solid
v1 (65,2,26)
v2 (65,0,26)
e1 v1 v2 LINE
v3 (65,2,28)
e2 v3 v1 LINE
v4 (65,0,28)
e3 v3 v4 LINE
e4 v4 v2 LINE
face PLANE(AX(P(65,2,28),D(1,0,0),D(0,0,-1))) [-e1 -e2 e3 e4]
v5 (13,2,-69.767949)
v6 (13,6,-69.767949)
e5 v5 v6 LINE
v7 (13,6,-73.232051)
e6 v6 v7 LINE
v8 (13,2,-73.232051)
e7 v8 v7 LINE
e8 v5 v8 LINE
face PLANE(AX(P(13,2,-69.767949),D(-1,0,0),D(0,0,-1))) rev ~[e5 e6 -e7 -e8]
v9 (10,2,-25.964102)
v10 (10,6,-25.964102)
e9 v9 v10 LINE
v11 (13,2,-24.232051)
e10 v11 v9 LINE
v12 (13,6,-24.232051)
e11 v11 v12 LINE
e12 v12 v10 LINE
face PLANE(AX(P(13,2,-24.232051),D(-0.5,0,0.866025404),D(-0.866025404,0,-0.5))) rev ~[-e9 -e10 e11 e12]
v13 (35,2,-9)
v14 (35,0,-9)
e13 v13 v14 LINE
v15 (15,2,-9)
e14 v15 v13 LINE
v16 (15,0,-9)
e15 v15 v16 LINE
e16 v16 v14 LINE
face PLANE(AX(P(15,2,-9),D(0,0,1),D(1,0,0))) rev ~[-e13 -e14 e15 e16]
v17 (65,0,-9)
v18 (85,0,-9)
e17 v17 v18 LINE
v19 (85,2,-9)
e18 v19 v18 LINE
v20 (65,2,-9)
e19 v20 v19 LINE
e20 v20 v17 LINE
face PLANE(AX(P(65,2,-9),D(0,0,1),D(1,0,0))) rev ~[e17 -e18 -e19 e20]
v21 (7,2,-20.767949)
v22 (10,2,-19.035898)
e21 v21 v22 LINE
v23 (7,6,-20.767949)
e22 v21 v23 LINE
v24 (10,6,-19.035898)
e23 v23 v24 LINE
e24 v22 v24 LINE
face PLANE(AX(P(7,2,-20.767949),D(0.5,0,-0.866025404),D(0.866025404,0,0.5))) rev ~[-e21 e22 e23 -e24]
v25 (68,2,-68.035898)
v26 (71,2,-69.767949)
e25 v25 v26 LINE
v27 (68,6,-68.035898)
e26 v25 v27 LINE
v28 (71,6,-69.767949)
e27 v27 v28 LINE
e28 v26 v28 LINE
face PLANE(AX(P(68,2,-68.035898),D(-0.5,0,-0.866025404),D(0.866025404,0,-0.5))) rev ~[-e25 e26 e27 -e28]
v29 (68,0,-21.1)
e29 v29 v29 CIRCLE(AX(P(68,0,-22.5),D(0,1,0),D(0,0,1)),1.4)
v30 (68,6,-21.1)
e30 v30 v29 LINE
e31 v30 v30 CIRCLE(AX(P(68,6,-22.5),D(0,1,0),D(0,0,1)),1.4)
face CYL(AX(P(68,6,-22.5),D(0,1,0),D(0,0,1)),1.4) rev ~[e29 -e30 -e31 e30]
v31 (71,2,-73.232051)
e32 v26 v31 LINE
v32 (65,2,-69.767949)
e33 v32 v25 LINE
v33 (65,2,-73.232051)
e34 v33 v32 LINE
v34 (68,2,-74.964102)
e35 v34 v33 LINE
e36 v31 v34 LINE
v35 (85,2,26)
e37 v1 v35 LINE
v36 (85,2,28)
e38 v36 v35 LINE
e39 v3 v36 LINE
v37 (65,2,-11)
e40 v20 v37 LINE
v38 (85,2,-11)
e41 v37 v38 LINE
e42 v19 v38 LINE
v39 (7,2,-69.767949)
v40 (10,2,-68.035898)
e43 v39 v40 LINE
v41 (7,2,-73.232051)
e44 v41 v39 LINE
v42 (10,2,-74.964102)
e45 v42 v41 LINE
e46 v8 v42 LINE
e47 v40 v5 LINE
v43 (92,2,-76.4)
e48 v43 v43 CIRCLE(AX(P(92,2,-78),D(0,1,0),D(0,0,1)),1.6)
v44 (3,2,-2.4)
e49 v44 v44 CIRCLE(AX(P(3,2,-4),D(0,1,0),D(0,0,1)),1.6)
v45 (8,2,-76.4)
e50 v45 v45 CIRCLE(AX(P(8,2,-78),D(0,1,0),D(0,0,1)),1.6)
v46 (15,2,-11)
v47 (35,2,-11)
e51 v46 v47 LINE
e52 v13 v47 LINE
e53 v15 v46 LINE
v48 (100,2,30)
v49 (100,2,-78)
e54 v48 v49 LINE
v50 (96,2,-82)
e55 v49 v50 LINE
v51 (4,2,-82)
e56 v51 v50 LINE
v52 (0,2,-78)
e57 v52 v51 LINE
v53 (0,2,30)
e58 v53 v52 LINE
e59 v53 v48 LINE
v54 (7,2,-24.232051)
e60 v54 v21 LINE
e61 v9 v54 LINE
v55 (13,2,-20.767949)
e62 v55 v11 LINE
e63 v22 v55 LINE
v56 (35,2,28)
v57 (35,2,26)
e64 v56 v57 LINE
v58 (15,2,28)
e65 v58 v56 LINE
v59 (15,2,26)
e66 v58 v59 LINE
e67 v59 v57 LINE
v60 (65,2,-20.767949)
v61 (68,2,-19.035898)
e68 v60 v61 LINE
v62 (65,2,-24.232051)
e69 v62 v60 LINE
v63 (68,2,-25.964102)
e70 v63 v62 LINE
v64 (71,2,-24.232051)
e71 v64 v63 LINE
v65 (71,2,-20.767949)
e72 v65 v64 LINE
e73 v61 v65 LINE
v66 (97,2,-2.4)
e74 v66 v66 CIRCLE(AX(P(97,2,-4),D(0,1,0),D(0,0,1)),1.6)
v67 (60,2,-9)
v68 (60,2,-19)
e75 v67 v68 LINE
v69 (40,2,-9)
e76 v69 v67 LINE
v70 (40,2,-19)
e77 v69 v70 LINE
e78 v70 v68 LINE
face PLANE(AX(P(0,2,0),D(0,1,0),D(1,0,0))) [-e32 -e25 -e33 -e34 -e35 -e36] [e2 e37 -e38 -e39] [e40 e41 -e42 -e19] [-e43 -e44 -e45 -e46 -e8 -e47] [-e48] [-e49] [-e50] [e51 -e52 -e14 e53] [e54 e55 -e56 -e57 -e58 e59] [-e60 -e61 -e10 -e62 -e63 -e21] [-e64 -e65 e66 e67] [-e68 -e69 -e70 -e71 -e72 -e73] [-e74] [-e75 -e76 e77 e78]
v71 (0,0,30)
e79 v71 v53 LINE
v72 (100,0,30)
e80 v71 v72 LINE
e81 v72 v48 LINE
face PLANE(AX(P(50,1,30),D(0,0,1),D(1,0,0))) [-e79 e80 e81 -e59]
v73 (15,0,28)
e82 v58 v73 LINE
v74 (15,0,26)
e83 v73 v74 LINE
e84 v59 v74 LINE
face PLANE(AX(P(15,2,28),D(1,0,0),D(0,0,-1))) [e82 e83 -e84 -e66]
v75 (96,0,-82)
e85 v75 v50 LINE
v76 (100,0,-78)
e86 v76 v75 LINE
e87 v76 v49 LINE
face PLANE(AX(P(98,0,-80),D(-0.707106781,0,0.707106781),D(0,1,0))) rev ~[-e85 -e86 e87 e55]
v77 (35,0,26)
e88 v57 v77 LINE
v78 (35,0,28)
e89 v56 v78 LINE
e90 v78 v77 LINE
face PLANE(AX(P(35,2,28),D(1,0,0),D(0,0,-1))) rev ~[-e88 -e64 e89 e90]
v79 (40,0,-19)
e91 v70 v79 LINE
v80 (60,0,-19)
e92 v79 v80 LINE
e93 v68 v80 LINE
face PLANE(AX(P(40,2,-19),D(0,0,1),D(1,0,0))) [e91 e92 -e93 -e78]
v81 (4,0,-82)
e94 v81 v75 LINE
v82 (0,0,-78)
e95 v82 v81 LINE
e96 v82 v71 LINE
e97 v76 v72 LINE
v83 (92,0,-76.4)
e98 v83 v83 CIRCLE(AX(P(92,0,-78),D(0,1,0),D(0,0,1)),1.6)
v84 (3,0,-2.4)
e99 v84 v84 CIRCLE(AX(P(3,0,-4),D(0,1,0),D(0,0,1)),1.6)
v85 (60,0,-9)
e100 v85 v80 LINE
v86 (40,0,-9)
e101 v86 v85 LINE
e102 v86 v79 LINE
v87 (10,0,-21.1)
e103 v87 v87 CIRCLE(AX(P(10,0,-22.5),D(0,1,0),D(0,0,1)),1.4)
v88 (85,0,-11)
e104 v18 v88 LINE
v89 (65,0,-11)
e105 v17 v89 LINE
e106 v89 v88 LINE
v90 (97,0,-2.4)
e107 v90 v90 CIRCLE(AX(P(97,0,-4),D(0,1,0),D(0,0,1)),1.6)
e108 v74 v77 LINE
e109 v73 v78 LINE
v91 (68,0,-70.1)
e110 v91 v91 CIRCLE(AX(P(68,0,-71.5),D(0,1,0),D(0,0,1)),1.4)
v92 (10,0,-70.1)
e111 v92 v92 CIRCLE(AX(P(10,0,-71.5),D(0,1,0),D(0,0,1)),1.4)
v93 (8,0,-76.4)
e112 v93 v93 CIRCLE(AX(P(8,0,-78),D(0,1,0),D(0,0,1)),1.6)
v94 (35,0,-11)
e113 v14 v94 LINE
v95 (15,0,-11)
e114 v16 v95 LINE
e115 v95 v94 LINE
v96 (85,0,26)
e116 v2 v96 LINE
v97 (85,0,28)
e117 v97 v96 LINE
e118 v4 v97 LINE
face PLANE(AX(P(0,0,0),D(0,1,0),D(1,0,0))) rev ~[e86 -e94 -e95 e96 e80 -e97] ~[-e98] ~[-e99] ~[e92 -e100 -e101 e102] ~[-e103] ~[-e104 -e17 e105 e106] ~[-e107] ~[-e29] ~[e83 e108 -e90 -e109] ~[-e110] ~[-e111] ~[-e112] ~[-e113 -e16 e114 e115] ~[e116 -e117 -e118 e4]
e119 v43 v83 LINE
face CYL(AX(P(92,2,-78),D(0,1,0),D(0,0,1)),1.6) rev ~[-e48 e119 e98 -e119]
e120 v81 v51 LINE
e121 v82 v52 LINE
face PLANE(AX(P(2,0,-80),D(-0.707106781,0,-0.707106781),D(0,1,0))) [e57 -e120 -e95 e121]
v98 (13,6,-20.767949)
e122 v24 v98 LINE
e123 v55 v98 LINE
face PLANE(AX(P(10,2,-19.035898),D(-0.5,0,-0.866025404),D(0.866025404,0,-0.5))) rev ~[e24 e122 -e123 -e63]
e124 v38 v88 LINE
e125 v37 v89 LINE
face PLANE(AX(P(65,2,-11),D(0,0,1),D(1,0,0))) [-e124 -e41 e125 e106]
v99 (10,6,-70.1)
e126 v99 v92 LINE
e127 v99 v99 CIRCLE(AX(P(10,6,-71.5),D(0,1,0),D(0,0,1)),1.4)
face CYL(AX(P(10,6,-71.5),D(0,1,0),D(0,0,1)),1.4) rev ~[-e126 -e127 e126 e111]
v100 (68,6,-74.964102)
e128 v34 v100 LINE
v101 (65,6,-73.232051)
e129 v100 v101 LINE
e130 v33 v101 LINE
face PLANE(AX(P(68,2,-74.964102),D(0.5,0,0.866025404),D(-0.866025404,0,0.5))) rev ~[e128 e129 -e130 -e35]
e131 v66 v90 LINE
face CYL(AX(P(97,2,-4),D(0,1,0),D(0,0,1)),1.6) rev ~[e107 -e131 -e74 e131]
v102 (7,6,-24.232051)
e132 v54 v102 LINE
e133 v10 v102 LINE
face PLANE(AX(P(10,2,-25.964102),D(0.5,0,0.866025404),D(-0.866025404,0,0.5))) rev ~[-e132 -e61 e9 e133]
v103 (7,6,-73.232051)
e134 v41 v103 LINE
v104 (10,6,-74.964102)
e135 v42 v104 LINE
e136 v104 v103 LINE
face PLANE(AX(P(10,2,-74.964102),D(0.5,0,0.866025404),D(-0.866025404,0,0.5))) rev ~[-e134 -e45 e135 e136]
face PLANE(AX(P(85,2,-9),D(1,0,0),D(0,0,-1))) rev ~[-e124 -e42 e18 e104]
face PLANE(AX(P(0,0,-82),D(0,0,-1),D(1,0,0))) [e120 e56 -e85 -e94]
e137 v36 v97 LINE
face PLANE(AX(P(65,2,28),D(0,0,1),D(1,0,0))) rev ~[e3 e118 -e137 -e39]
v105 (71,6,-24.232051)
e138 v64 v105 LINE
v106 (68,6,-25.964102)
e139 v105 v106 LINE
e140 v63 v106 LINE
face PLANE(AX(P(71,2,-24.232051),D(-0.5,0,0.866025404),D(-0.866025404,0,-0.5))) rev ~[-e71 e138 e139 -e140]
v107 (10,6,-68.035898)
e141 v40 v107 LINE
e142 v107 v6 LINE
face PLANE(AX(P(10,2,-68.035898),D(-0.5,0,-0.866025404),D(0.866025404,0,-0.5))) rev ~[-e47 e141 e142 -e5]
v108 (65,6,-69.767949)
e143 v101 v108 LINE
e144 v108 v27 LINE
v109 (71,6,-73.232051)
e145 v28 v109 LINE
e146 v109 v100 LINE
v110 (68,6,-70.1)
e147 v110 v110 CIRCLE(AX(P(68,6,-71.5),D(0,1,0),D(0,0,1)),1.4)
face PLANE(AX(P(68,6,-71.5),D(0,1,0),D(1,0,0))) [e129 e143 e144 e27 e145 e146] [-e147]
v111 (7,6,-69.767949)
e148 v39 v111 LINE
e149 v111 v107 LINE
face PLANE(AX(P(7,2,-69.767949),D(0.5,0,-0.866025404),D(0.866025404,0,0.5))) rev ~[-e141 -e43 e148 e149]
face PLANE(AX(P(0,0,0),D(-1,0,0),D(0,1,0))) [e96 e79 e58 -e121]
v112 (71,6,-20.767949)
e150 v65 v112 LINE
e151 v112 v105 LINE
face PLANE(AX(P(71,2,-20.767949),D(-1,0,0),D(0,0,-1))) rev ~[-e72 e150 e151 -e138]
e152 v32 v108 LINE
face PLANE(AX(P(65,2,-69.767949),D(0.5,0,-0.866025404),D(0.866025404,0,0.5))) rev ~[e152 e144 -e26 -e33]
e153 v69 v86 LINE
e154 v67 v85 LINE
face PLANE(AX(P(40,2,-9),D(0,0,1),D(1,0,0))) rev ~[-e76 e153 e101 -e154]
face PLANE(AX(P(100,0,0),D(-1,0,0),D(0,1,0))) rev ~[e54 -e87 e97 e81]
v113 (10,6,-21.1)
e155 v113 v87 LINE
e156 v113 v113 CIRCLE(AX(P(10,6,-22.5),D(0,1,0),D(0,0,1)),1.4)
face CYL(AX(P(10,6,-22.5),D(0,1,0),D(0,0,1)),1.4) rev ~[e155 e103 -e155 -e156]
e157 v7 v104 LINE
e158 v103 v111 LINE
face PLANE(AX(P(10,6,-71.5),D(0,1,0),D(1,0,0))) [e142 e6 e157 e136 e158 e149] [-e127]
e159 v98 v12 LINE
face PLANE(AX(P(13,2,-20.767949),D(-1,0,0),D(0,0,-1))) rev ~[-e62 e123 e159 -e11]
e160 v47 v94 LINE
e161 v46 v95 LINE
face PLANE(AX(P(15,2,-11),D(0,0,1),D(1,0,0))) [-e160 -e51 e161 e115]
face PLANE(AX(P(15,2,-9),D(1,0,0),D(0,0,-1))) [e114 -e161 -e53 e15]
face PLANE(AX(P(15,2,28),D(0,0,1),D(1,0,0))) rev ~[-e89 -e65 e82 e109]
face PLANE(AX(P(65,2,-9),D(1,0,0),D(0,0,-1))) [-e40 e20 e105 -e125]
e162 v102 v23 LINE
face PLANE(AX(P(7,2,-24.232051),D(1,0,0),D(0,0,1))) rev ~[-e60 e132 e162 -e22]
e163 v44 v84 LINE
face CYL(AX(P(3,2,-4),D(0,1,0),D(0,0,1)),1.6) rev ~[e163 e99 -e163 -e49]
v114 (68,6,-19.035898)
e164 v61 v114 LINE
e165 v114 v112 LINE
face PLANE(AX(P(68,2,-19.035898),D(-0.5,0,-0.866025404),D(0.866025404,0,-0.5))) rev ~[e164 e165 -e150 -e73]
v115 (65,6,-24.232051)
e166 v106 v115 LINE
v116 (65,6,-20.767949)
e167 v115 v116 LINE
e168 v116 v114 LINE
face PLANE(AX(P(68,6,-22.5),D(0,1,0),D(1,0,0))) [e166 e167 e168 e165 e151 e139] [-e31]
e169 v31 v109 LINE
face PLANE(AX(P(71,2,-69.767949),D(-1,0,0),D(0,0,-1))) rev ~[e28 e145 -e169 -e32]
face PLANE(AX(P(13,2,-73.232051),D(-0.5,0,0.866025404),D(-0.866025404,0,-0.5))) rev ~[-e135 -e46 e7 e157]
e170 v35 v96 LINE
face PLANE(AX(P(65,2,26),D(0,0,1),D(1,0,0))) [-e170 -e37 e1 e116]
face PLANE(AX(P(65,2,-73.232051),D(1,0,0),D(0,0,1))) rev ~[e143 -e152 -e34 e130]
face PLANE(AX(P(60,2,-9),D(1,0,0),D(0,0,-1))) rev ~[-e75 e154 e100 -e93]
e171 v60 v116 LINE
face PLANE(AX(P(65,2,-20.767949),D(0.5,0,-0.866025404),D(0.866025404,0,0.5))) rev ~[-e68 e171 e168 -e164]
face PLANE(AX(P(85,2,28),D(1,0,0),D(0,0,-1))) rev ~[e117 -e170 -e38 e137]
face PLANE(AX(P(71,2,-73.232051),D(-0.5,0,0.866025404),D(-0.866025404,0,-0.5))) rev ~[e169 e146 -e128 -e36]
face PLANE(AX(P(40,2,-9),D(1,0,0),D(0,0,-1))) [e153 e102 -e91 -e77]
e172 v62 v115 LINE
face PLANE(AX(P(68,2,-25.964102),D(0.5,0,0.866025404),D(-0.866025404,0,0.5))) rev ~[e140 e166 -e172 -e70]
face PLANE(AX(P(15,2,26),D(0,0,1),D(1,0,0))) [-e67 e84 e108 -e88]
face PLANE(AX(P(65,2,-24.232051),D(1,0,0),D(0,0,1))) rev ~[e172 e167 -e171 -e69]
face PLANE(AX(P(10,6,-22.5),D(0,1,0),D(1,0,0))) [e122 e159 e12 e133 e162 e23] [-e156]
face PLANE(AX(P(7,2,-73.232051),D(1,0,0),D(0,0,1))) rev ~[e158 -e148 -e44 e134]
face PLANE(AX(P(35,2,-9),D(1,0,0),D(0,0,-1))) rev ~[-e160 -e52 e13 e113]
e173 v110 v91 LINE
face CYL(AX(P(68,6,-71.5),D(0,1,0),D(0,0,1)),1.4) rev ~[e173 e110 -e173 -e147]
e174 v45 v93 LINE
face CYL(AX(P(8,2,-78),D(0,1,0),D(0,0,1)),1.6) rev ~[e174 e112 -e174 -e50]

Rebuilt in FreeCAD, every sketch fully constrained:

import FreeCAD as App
import Part
import Sketcher
from FreeCAD import Vector
Q = App.Units.Quantity


def edges_at(feature, points):
    """Names of the edges that pass closest to the given points."""
    edges = feature.Shape.Edges
    near = lambda p: min(range(len(edges)), key=lambda i: edges[i].distToShape(Part.Vertex(*p))[0])
    return sorted({f"Edge{near(p) + 1}" for p in points})


def add_polygon(sketch, points):
    """Adds a closed chain of lines whose ends are joined by coincident constraints."""
    first, n = sketch.GeometryCount, len(points)
    for a, b in zip(points, points[1:] + points[:1]):
        sketch.addGeometry(Part.LineSegment(App.Vector(*a, 0), App.Vector(*b, 0)), False)
    for i in range(n):
        sketch.addConstraint(Sketcher.Constraint("Coincident", first + i, 2, first + (i + 1) % n, 1))

doc = App.newDocument("Part")
body = doc.addObject("PartDesign::Body", "Body")

sketch1 = body.newObject("Sketcher::SketchObject", "Sketch")
sketch1.AttachmentSupport = (doc.getObject("XZ_Plane"), [""])
sketch1.MapMode = "FlatFace"
add_polygon(sketch1, [(0, -82), (0, 0), (100, 0), (100, -82)])
sketch1.addConstraint([
    Sketcher.Constraint("Vertical", 0),
    Sketcher.Constraint("Horizontal", 1),
    Sketcher.Constraint("Vertical", 2),
    Sketcher.Constraint("Horizontal", 3),
    Sketcher.Constraint("Coincident", 0, 2, -1, 1),
    Sketcher.Constraint("DistanceX", 1, 1, 1, 2, 100.0),
    Sketcher.Constraint("DistanceY", 0, 1, 0, 2, 82.0),
])
pad1 = body.newObject("PartDesign::Pad", "Pad")
pad1.Profile = sketch1
pad1.Length = 2
pad1.Reversed = True
doc.recompute()

chamfer = body.newObject("PartDesign::Chamfer", "Chamfer")
chamfer.Base = (pad1, edges_at(pad1, [(0, 1, -82), (100, 1, -82)]))
chamfer.Size = 4

sketch2 = body.newObject("Sketcher::SketchObject", "Sketch001")
sketch2.AttachmentSupport = (doc.getObject("XZ_Plane"), [""])
sketch2.MapMode = "FlatFace"
sketch2.AttachmentOffset = App.Placement(Vector(0, 0, -2), App.Rotation())
sketch2.addGeometry([
    Part.Circle(Vector(8, -78, 0), Vector(0, 0, 1), 1.6),
    Part.Circle(Vector(92, -78, 0), Vector(0, 0, 1), 1.6),
    Part.Circle(Vector(97, -4, 0), Vector(0, 0, 1), 1.6),
    Part.Circle(Vector(3, -4, 0), Vector(0, 0, 1), 1.6),
], False)
sketch2.addConstraint([
    Sketcher.Constraint("Equal", 0, 1),
    Sketcher.Constraint("Equal", 1, 2),
    Sketcher.Constraint("Equal", 2, 3),
    Sketcher.Constraint("Horizontal", 0, 3, 1, 3),
    Sketcher.Constraint("Horizontal", 2, 3, 3, 3),
    Sketcher.Constraint("Diameter", 0, 3.2),
    Sketcher.Constraint("DistanceX", -1, 1, 0, 3, 8.0),
    Sketcher.Constraint("DistanceY", 0, 3, -1, 1, 78.0),
    Sketcher.Constraint("DistanceX", -1, 1, 1, 3, 92.0),
    Sketcher.Constraint("DistanceX", -1, 1, 2, 3, 97.0),
    Sketcher.Constraint("DistanceY", 2, 3, -1, 1, 4.0),
    Sketcher.Constraint("DistanceX", -1, 1, 3, 3, 3.0),
])
pocket1 = body.newObject("PartDesign::Pocket", "Pocket")
pocket1.Profile = sketch2
pocket1.Type = "ThroughAll"
pocket1.Reversed = True

sketch3 = body.newObject("Sketcher::SketchObject", "Sketch002")
sketch3.AttachmentSupport = (doc.getObject("XY_Plane"), [""])
sketch3.MapMode = "FlatFace"
add_polygon(sketch3, [(0, 2), (0, 0), (100, 0), (100, 2)])
sketch3.addConstraint([
    Sketcher.Constraint("Vertical", 0),
    Sketcher.Constraint("Horizontal", 1),
    Sketcher.Constraint("Vertical", 2),
    Sketcher.Constraint("Horizontal", 3),
    Sketcher.Constraint("Coincident", 0, 2, -1, 1),
    Sketcher.Constraint("DistanceX", 1, 1, 1, 2, 100.0),
    Sketcher.Constraint("DistanceY", 0, 2, 0, 1, 2.0),
])
pad2 = body.newObject("PartDesign::Pad", "Pad001")
pad2.Profile = sketch3
pad2.Length = 30

sketch4 = body.newObject("Sketcher::SketchObject", "Sketch003")
sketch4.AttachmentSupport = (doc.getObject("XZ_Plane"), [""])
sketch4.MapMode = "FlatFace"
sketch4.AttachmentOffset = App.Placement(Vector(0, 0, -2), App.Rotation())
add_polygon(sketch4, [(15, 26), (15, 28), (35, 28), (35, 26)])
add_polygon(sketch4, [(65, 26), (65, 28), (85, 28), (85, 26)])
add_polygon(sketch4, [(15, -11), (15, -9), (35, -9), (35, -11)])
add_polygon(sketch4, [(65, -11), (65, -9), (85, -9), (85, -11)])
sketch4.addConstraint([
    Sketcher.Constraint("Vertical", 0),
    Sketcher.Constraint("Horizontal", 1),
    Sketcher.Constraint("Vertical", 2),
    Sketcher.Constraint("Horizontal", 3),
    Sketcher.Constraint("Vertical", 4),
    Sketcher.Constraint("Horizontal", 5),
    Sketcher.Constraint("Vertical", 6),
    Sketcher.Constraint("Horizontal", 7),
    Sketcher.Constraint("Vertical", 8),
    Sketcher.Constraint("Horizontal", 9),
    Sketcher.Constraint("Vertical", 10),
    Sketcher.Constraint("Horizontal", 11),
    Sketcher.Constraint("Vertical", 12),
    Sketcher.Constraint("Horizontal", 13),
    Sketcher.Constraint("Vertical", 14),
    Sketcher.Constraint("Horizontal", 15),
    Sketcher.Constraint("Horizontal", 1, 2, 4, 2),
    Sketcher.Constraint("Horizontal", 3, 2, 6, 2),
    Sketcher.Constraint("Horizontal", 9, 2, 12, 2),
    Sketcher.Constraint("Horizontal", 11, 2, 14, 2),
    Sketcher.Constraint("Vertical", 3, 2, 8, 2),
    Sketcher.Constraint("Vertical", 2, 2, 9, 2),
    Sketcher.Constraint("Vertical", 7, 2, 12, 2),
    Sketcher.Constraint("Vertical", 6, 2, 13, 2),
    Sketcher.Constraint("Equal", 3, 5),
    Sketcher.Constraint("Equal", 6, 8),
    Sketcher.Constraint("DistanceX", 1, 1, 1, 2, 20.0),
    Sketcher.Constraint("DistanceY", 0, 1, 0, 2, 2.0),
    Sketcher.Constraint("DistanceX", -1, 1, 0, 2, 15.0),
    Sketcher.Constraint("DistanceY", -1, 1, 0, 2, 28.0),
    Sketcher.Constraint("DistanceX", -1, 1, 4, 2, 65.0),
    Sketcher.Constraint("DistanceY", 8, 2, -1, 1, 9.0),
])
pocket2 = body.newObject("PartDesign::Pocket", "Pocket001")
pocket2.Profile = sketch4
pocket2.Type = "ThroughAll"
pocket2.Reversed = True

sketch5 = body.newObject("Sketcher::SketchObject", "Sketch004")
sketch5.AttachmentSupport = (doc.getObject("XZ_Plane"), [""])
sketch5.MapMode = "FlatFace"
sketch5.AttachmentOffset = App.Placement(Vector(0, 0, -2), App.Rotation())
add_polygon(sketch5, [(10, -68), (13, -69.8), (13, -73.2), (10, -75), (7, -73.2), (7, -69.8)])
add_polygon(sketch5, [(10, -26), (7, -24.2), (7, -20.8), (10, -19), (13, -20.8), (13, -24.2)])
add_polygon(sketch5, [(68, -26), (65, -24.2), (65, -20.8), (68, -19), (71, -20.8), (71, -24.2)])
add_polygon(sketch5, [(68, -68), (71, -69.8), (71, -73.2), (68, -75), (65, -73.2), (65, -69.8)])
sketch5.addConstraint([
    Sketcher.Constraint("Vertical", 1),
    Sketcher.Constraint("Vertical", 4),
    Sketcher.Constraint("Vertical", 7),
    Sketcher.Constraint("Vertical", 10),
    Sketcher.Constraint("Vertical", 13),
    Sketcher.Constraint("Vertical", 16),
    Sketcher.Constraint("Vertical", 19),
    Sketcher.Constraint("Vertical", 22),
    Sketcher.Constraint("Parallel", 0, 3),
    Sketcher.Constraint("Parallel", 2, 5),
    Sketcher.Constraint("Parallel", 3, 6),
    Sketcher.Constraint("Parallel", 5, 8),
    Sketcher.Constraint("Parallel", 6, 9),
    Sketcher.Constraint("Parallel", 8, 11),
    Sketcher.Constraint("Parallel", 9, 12),
    Sketcher.Constraint("Parallel", 11, 14),
    Sketcher.Constraint("Parallel", 12, 15),
    Sketcher.Constraint("Parallel", 14, 17),
    Sketcher.Constraint("Parallel", 15, 18),
    Sketcher.Constraint("Parallel", 17, 20),
    Sketcher.Constraint("Parallel", 18, 21),
    Sketcher.Constraint("Parallel", 20, 23),
    Sketcher.Constraint("Horizontal", 1, 2, 3, 2),
    Sketcher.Constraint("Horizontal", 0, 2, 4, 2),
    Sketcher.Constraint("Horizontal", 7, 2, 9, 2),
    Sketcher.Constraint("Horizontal", 6, 2, 10, 2),
    Sketcher.Constraint("Horizontal", 10, 2, 12, 2),
    Sketcher.Constraint("Horizontal", 9, 2, 13, 2),
    Sketcher.Constraint("Horizontal", 8, 2, 14, 2),
    Sketcher.Constraint("Horizontal", 13, 2, 15, 2),
    Sketcher.Constraint("Horizontal", 12, 2, 16, 2),
    Sketcher.Constraint("Horizontal", 4, 2, 18, 2),
    Sketcher.Constraint("Horizontal", 3, 2, 19, 2),
    Sketcher.Constraint("Horizontal", 2, 2, 20, 2),
    Sketcher.Constraint("Horizontal", 19, 2, 21, 2),
    Sketcher.Constraint("Horizontal", 18, 2, 22, 2),
    Sketcher.Constraint("Vertical", 2, 2, 5, 2),
    Sketcher.Constraint("Vertical", 4, 2, 6, 2),
    Sketcher.Constraint("Vertical", 5, 2, 8, 2),
    Sketcher.Constraint("Vertical", 16, 2, 18, 2),
    Sketcher.Constraint("Equal", 4, 7),
    Sketcher.Constraint("Angle", 0, Q("-30 deg")),
    Sketcher.Constraint("DistanceX", -1, 1, 0, 2, 13.0),
    Sketcher.Constraint("DistanceX", -1, 1, 2, 2, 10.0),
    Sketcher.Constraint("DistanceX", -1, 1, 12, 2, 65.0),
    Sketcher.Constraint("DistanceY", 3, 2, 6, 2, 49.0),
    Sketcher.Constraint("DistanceY", 1, 2, 1, 1, 3.464102),
    Sketcher.Constraint("DistanceY", 2, 2, -1, 1, 74.964102),
])
pad3 = body.newObject("PartDesign::Pad", "Pad002")
pad3.Profile = sketch5
pad3.Length = 4
pad3.Reversed = True

sketch6 = body.newObject("Sketcher::SketchObject", "Sketch005")
sketch6.AttachmentSupport = (doc.getObject("XZ_Plane"), [""])
sketch6.MapMode = "FlatFace"
sketch6.AttachmentOffset = App.Placement(Vector(0, 0, -6), App.Rotation())
sketch6.addGeometry([
    Part.Circle(Vector(10, -71.5, 0), Vector(0, 0, 1), 1.4),
    Part.Circle(Vector(68, -71.5, 0), Vector(0, 0, 1), 1.4),
    Part.Circle(Vector(68, -22.5, 0), Vector(0, 0, 1), 1.4),
    Part.Circle(Vector(10, -22.5, 0), Vector(0, 0, 1), 1.4),
], False)
sketch6.addConstraint([
    Sketcher.Constraint("Equal", 0, 1),
    Sketcher.Constraint("Equal", 1, 2),
    Sketcher.Constraint("Equal", 2, 3),
    Sketcher.Constraint("Horizontal", 0, 3, 1, 3),
    Sketcher.Constraint("Horizontal", 2, 3, 3, 3),
    Sketcher.Constraint("Vertical", 1, 3, 2, 3),
    Sketcher.Constraint("Vertical", 0, 3, 3, 3),
    Sketcher.Constraint("Diameter", 0, 2.8),
    Sketcher.Constraint("DistanceX", -1, 1, 0, 3, 10.0),
    Sketcher.Constraint("DistanceX", -1, 1, 1, 3, 68.0),
    Sketcher.Constraint("DistanceY", 1, 3, 2, 3, 49.0),
    Sketcher.Constraint("DistanceY", 0, 3, -1, 1, 71.5),
])
pocket3 = body.newObject("PartDesign::Pocket", "Pocket002")
pocket3.Profile = sketch6
pocket3.Type = "ThroughAll"
pocket3.Reversed = True

sketch7 = body.newObject("Sketcher::SketchObject", "Sketch006")
sketch7.AttachmentSupport = (doc.getObject("XZ_Plane"), [""])
sketch7.MapMode = "FlatFace"
sketch7.AttachmentOffset = App.Placement(Vector(0, 0, -2), App.Rotation())
add_polygon(sketch7, [(40, -19), (40, -9), (60, -9), (60, -19)])
sketch7.addConstraint([
    Sketcher.Constraint("Vertical", 0),
    Sketcher.Constraint("Horizontal", 1),
    Sketcher.Constraint("Vertical", 2),
    Sketcher.Constraint("Horizontal", 3),
    Sketcher.Constraint("DistanceX", 1, 1, 1, 2, 20.0),
    Sketcher.Constraint("DistanceY", 0, 1, 0, 2, 10.0),
    Sketcher.Constraint("DistanceX", -1, 1, 0, 2, 40.0),
    Sketcher.Constraint("DistanceY", 0, 2, -1, 1, 9.0),
])
pocket4 = body.newObject("PartDesign::Pocket", "Pocket003")
pocket4.Profile = sketch7
pocket4.Type = "ThroughAll"
pocket4.Reversed = True

doc.recompute()
